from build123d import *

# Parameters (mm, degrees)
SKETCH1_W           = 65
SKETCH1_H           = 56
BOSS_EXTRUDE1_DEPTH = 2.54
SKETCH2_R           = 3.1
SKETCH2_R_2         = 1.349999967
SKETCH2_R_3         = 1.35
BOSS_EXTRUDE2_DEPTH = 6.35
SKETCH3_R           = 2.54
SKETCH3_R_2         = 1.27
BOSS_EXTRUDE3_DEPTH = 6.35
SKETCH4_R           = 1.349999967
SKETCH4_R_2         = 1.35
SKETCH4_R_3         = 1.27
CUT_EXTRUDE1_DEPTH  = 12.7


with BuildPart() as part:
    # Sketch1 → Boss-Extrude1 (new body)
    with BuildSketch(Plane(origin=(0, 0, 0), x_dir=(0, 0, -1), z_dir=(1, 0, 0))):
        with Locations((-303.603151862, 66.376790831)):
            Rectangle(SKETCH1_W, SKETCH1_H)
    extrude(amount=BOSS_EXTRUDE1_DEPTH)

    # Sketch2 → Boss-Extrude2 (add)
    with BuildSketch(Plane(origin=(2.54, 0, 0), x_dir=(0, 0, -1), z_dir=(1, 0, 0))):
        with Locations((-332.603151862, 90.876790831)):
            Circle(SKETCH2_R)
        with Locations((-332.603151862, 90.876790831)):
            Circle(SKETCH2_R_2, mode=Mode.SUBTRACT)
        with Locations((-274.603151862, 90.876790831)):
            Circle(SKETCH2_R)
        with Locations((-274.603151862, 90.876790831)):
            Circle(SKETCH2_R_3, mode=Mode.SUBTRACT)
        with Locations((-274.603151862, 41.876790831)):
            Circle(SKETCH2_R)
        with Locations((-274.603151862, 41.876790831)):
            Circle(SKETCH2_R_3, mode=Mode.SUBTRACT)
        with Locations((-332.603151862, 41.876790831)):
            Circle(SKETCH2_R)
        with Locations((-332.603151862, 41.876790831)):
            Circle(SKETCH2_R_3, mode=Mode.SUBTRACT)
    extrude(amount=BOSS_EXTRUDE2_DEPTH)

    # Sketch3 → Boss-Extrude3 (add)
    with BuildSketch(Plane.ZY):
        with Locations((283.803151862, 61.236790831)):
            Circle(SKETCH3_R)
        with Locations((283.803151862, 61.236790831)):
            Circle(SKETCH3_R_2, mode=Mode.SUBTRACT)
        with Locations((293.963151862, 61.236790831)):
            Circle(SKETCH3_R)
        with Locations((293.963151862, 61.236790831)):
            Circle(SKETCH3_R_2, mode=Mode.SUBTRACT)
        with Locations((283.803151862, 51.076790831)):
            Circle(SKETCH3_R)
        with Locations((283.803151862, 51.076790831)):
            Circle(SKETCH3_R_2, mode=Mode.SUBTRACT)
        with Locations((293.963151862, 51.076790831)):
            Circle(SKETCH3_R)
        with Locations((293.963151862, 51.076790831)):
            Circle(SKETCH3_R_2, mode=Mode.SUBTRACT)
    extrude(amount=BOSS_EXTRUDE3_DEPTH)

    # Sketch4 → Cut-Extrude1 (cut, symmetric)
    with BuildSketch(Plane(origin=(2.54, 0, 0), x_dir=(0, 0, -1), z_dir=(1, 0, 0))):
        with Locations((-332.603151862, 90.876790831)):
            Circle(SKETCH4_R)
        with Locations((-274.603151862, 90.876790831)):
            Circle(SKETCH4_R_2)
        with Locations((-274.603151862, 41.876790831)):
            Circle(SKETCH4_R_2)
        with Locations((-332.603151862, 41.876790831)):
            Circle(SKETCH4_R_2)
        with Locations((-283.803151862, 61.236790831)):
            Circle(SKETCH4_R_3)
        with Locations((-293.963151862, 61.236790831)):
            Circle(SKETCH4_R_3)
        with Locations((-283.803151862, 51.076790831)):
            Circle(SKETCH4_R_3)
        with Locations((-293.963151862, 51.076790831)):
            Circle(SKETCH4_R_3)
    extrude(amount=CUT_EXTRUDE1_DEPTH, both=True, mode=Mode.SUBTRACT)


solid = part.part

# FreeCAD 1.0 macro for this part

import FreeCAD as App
import Part
import Sketcher
from FreeCAD import Vector
Q = App.Units.Quantity

doc = App.newDocument("Part")
body = doc.addObject("PartDesign::Body", "Body")

sketch1 = body.newObject("Sketcher::SketchObject", "Sketch")
sketch1.AttachmentSupport = (doc.getObject("YZ_Plane"), [""])
sketch1.MapMode = "FlatFace"
sketch1.addGeometry(Part.LineSegment(Vector(94, 336, 0), Vector(38, 336, 0)), False)
sketch1.addGeometry(Part.LineSegment(Vector(38, 336, 0), Vector(38, 271, 0)), False)
sketch1.addGeometry(Part.LineSegment(Vector(38, 271, 0), Vector(94, 271, 0)), False)
sketch1.addGeometry(Part.LineSegment(Vector(94, 271, 0), Vector(94, 336, 0)), False)
sketch1.addConstraint(Sketcher.Constraint("Coincident", 0, 2, 1, 1))
sketch1.addConstraint(Sketcher.Constraint("Coincident", 1, 2, 2, 1))
sketch1.addConstraint(Sketcher.Constraint("Coincident", 2, 2, 3, 1))
sketch1.addConstraint(Sketcher.Constraint("Coincident", 3, 2, 0, 1))
sketch1.addConstraint(Sketcher.Constraint("Horizontal", 0))
sketch1.addConstraint(Sketcher.Constraint("Vertical", 1))
sketch1.addConstraint(Sketcher.Constraint("Horizontal", 2))
sketch1.addConstraint(Sketcher.Constraint("Vertical", 3))
sketch1.addConstraint(Sketcher.Constraint("DistanceX", 0, 2, 0, 1, Q("56 mm")))
sketch1.addConstraint(Sketcher.Constraint("DistanceY", 1, 2, 1, 1, Q("65 mm")))
sketch1.addConstraint(Sketcher.Constraint("DistanceX", -1, 1, 0, 2, Q("38.376791 mm")))
sketch1.addConstraint(Sketcher.Constraint("DistanceY", -1, 1, 0, 2, Q("336.103152 mm")))
pad1 = body.newObject("PartDesign::Pad", "Pad")
pad1.Profile = sketch1
pad1.Length = 2.54

sketch2 = body.newObject("Sketcher::SketchObject", "Sketch001")
sketch2.AttachmentSupport = (doc.getObject("YZ_Plane"), [""])
sketch2.MapMode = "FlatFace"
sketch2.AttachmentOffset = App.Placement(Vector(0, 0, 2.54), App.Rotation())
sketch2.addGeometry(Part.Circle(Vector(90.9, 332.6, 0), Vector(0, 0, 1), 3.1), False)
sketch2.addGeometry(Part.Circle(Vector(90.9, 332.6, 0), Vector(0, 0, 1), 1.3), False)
sketch2.addGeometry(Part.Circle(Vector(90.9, 274.6, 0), Vector(0, 0, 1), 3.1), False)
sketch2.addGeometry(Part.Circle(Vector(90.9, 274.6, 0), Vector(0, 0, 1), 1.4), False)
sketch2.addGeometry(Part.Circle(Vector(41.9, 274.6, 0), Vector(0, 0, 1), 3.1), False)
sketch2.addGeometry(Part.Circle(Vector(41.9, 274.6, 0), Vector(0, 0, 1), 1.4), False)
sketch2.addGeometry(Part.Circle(Vector(41.9, 332.6, 0), Vector(0, 0, 1), 3.1), False)
sketch2.addGeometry(Part.Circle(Vector(41.9, 332.6, 0), Vector(0, 0, 1), 1.4), False)
sketch2.addConstraint(Sketcher.Constraint("Coincident", 1, 3, 0, 3))
sketch2.addConstraint(Sketcher.Constraint("Coincident", 3, 3, 2, 3))
sketch2.addConstraint(Sketcher.Constraint("Coincident", 5, 3, 4, 3))
sketch2.addConstraint(Sketcher.Constraint("Coincident", 7, 3, 6, 3))
sketch2.addConstraint(Sketcher.Constraint("Equal", 0, 2))
sketch2.addConstraint(Sketcher.Constraint("Equal", 1, 3))
sketch2.addConstraint(Sketcher.Constraint("Equal", 2, 4))
sketch2.addConstraint(Sketcher.Constraint("Equal", 3, 5))
sketch2.addConstraint(Sketcher.Constraint("Equal", 4, 6))
sketch2.addConstraint(Sketcher.Constraint("Equal", 5, 7))
sketch2.addConstraint(Sketcher.Constraint("Horizontal", 3, 3, 4, 3))
sketch2.addConstraint(Sketcher.Constraint("Horizontal", 1, 3, 6, 3))
sketch2.addConstraint(Sketcher.Constraint("Vertical", 1, 3, 2, 3))
sketch2.addConstraint(Sketcher.Constraint("Vertical", 5, 3, 6, 3))
sketch2.addConstraint(Sketcher.Constraint("Diameter", 0, Q("6.2 mm")))
sketch2.addConstraint(Sketcher.Constraint("Diameter", 1, Q("2.7 mm")))
sketch2.addConstraint(Sketcher.Constraint("DistanceY", 2, 3, 0, 3, Q("58 mm")))
sketch2.addConstraint(Sketcher.Constraint("DistanceX", 4, 3, 2, 3, Q("49 mm")))
sketch2.addConstraint(Sketcher.Constraint("DistanceX", -1, 1, 0, 3, Q("90.876791 mm")))
sketch2.addConstraint(Sketcher.Constraint("DistanceY", -1, 1, 0, 3, Q("332.603152 mm")))
pad2 = body.newObject("PartDesign::Pad", "Pad001")
pad2.Profile = sketch2
pad2.Length = 6.35

sketch3 = body.newObject("Sketcher::SketchObject", "Sketch002")
sketch3.AttachmentSupport = (doc.getObject("YZ_Plane"), [""])
sketch3.MapMode = "FlatFace"
sketch3.addGeometry(Part.Circle(Vector(61.2, 283.8, 0), Vector(0, 0, 1), 2.5), False)
sketch3.addGeometry(Part.Circle(Vector(61.2, 283.8, 0), Vector(0, 0, 1), 1.3), False)
sketch3.addGeometry(Part.Circle(Vector(61.2, 294, 0), Vector(0, 0, 1), 2.5), False)
sketch3.addGeometry(Part.Circle(Vector(61.2, 294, 0), Vector(0, 0, 1), 1.3), False)
sketch3.addGeometry(Part.Circle(Vector(51.1, 283.8, 0), Vector(0, 0, 1), 2.5), False)
sketch3.addGeometry(Part.Circle(Vector(51.1, 283.8, 0), Vector(0, 0, 1), 1.3), False)
sketch3.addGeometry(Part.Circle(Vector(51.1, 294, 0), Vector(0, 0, 1), 2.5), False)
sketch3.addGeometry(Part.Circle(Vector(51.1, 294, 0), Vector(0, 0, 1), 1.3), False)
sketch3.addConstraint(Sketcher.Constraint("Coincident", 1, 3, 0, 3))
sketch3.addConstraint(Sketcher.Constraint("Coincident", 3, 3, 2, 3))
sketch3.addConstraint(Sketcher.Constraint("Coincident", 5, 3, 4, 3))
sketch3.addConstraint(Sketcher.Constraint("Coincident", 7, 3, 6, 3))
sketch3.addConstraint(Sketcher.Constraint("Equal", 0, 2))
sketch3.addConstraint(Sketcher.Constraint("Equal", 1, 3))
sketch3.addConstraint(Sketcher.Constraint("Equal", 2, 4))
sketch3.addConstraint(Sketcher.Constraint("Equal", 3, 5))
sketch3.addConstraint(Sketcher.Constraint("Equal", 4, 6))
sketch3.addConstraint(Sketcher.Constraint("Equal", 5, 7))
sketch3.addConstraint(Sketcher.Constraint("Horizontal", 1, 3, 4, 3))
sketch3.addConstraint(Sketcher.Constraint("Horizontal", 3, 3, 6, 3))
sketch3.addConstraint(Sketcher.Constraint("Vertical", 1, 3, 2, 3))
sketch3.addConstraint(Sketcher.Constraint("Vertical", 5, 3, 6, 3))
sketch3.addConstraint(Sketcher.Constraint("Diameter", 0, Q("5.08 mm")))
sketch3.addConstraint(Sketcher.Constraint("Diameter", 1, Q("2.54 mm")))
sketch3.addConstraint(Sketcher.Constraint("DistanceY", 0, 3, 2, 3, Q("10.16 mm")))
sketch3.addConstraint(Sketcher.Constraint("DistanceX", 4, 3, 0, 3, Q("10.16 mm")))
sketch3.addConstraint(Sketcher.Constraint("DistanceX", -1, 1, 0, 3, Q("61.236791 mm")))
sketch3.addConstraint(Sketcher.Constraint("DistanceY", -1, 1, 0, 3, Q("283.803152 mm")))
pad3 = body.newObject("PartDesign::Pad", "Pad002")
pad3.Profile = sketch3
pad3.Length = 6.35
pad3.Reversed = True

sketch4 = body.newObject("Sketcher::SketchObject", "Sketch003")
sketch4.AttachmentSupport = (doc.getObject("YZ_Plane"), [""])
sketch4.MapMode = "FlatFace"
sketch4.AttachmentOffset = App.Placement(Vector(0, 0, 2.54), App.Rotation())
sketch4.addGeometry(Part.Circle(Vector(90.9, 332.6, 0), Vector(0, 0, 1), 1.3), False)
sketch4.addGeometry(Part.Circle(Vector(90.9, 274.6, 0), Vector(0, 0, 1), 1.4), False)
sketch4.addGeometry(Part.Circle(Vector(41.9, 274.6, 0), Vector(0, 0, 1), 1.4), False)
sketch4.addGeometry(Part.Circle(Vector(41.9, 332.6, 0), Vector(0, 0, 1), 1.4), False)
sketch4.addGeometry(Part.Circle(Vector(61.2, 283.8, 0), Vector(0, 0, 1), 1.3), False)
sketch4.addGeometry(Part.Circle(Vector(61.2, 294, 0), Vector(0, 0, 1), 1.3), False)
sketch4.addGeometry(Part.Circle(Vector(51.1, 283.8, 0), Vector(0, 0, 1), 1.3), False)
sketch4.addGeometry(Part.Circle(Vector(51.1, 294, 0), Vector(0, 0, 1), 1.3), False)
sketch4.addConstraint(Sketcher.Constraint("Equal", 0, 1))
sketch4.addConstraint(Sketcher.Constraint("Equal", 1, 2))
sketch4.addConstraint(Sketcher.Constraint("Equal", 2, 3))
sketch4.addConstraint(Sketcher.Constraint("Equal", 4, 5))
sketch4.addConstraint(Sketcher.Constraint("Equal", 5, 6))
sketch4.addConstraint(Sketcher.Constraint("Equal", 6, 7))
sketch4.addConstraint(Sketcher.Constraint("Horizontal", 1, 3, 2, 3))
sketch4.addConstraint(Sketcher.Constraint("Horizontal", 0, 3, 3, 3))
sketch4.addConstraint(Sketcher.Constraint("Horizontal", 4, 3, 6, 3))
sketch4.addConstraint(Sketcher.Constraint("Horizontal", 5, 3, 7, 3))
sketch4.addConstraint(Sketcher.Constraint("Vertical", 0, 3, 1, 3))
sketch4.addConstraint(Sketcher.Constraint("Vertical", 2, 3, 3, 3))
sketch4.addConstraint(Sketcher.Constraint("Vertical", 4, 3, 5, 3))
sketch4.addConstraint(Sketcher.Constraint("Vertical", 6, 3, 7, 3))
sketch4.addConstraint(Sketcher.Constraint("Diameter", 0, Q("2.7 mm")))
sketch4.addConstraint(Sketcher.Constraint("Diameter", 4, Q("2.54 mm")))
sketch4.addConstraint(Sketcher.Constraint("DistanceY", 1, 3, 0, 3, Q("58 mm")))
sketch4.addConstraint(Sketcher.Constraint("DistanceX", 2, 3, 1, 3, Q("49 mm")))
sketch4.addConstraint(Sketcher.Constraint("DistanceY", 2, 3, 4, 3, Q("9.2 mm")))
sketch4.addConstraint(Sketcher.Constraint("DistanceX", 2, 3, 6, 3, Q("9.2 mm")))
sketch4.addConstraint(Sketcher.Constraint("DistanceX", 2, 3, 4, 3, Q("19.36 mm")))
sketch4.addConstraint(Sketcher.Constraint("DistanceY", 4, 3, 5, 3, Q("10.16 mm")))
sketch4.addConstraint(Sketcher.Constraint("DistanceX", -1, 1, 0, 3, Q("90.876791 mm")))
sketch4.addConstraint(Sketcher.Constraint("DistanceY", -1, 1, 0, 3, Q("332.603152 mm")))
pocket1 = body.newObject("PartDesign::Pocket", "Pocket")
pocket1.Profile = sketch4
pocket1.Length = 25.4
pocket1.Midplane = True

doc.recompute()
